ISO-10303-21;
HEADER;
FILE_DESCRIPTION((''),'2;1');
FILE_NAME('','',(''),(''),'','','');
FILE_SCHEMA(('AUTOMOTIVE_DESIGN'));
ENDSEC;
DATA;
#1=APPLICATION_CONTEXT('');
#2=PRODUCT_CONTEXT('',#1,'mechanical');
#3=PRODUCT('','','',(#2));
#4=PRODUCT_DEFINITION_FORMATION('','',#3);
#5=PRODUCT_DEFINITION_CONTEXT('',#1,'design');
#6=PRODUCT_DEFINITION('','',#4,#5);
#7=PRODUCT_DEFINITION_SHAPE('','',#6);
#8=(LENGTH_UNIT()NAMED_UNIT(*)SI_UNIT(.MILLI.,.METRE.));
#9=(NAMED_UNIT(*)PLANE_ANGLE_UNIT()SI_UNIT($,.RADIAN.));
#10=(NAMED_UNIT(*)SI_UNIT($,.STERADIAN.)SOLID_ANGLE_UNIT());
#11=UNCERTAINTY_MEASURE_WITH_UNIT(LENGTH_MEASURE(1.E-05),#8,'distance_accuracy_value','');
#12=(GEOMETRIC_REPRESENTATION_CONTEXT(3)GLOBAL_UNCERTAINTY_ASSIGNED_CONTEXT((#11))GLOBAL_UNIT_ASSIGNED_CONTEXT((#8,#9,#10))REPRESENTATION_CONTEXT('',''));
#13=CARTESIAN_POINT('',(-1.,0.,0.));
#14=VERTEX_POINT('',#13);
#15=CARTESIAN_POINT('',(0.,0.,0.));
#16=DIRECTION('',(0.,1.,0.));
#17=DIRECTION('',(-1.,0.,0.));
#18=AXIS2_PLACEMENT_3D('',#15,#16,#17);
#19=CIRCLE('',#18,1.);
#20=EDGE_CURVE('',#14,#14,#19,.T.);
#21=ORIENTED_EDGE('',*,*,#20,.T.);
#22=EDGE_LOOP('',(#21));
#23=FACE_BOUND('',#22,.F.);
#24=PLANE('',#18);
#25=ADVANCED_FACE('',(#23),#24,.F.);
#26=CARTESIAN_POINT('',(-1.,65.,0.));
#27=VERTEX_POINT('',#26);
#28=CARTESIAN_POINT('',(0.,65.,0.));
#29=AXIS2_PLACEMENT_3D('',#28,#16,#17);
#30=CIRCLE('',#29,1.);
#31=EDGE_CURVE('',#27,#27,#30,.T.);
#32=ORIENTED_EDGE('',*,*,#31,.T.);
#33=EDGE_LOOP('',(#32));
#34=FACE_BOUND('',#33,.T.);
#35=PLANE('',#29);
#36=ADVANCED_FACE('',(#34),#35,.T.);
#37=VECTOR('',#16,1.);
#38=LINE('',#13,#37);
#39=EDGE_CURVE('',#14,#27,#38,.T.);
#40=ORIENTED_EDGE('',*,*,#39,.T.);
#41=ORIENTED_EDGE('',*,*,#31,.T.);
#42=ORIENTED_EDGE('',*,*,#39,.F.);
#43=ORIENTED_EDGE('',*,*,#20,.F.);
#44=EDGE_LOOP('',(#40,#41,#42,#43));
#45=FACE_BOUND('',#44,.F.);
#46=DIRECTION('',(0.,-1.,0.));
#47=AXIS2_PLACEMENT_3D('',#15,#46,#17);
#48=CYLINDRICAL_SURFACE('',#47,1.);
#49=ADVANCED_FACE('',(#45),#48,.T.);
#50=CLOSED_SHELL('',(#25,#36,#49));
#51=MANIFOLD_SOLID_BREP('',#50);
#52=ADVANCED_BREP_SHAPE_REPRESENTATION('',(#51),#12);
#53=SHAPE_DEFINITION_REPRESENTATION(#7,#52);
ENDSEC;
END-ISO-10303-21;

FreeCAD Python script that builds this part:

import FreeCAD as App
import Part
import Sketcher
from FreeCAD import Vector

doc = App.newDocument("Part")
body = doc.addObject("PartDesign::Body", "Body")

sketch1 = body.newObject("Sketcher::SketchObject", "Sketch")
sketch1.AttachmentSupport = (doc.getObject("XZ_Plane"), [""])
sketch1.MapMode = "FlatFace"
sketch1.addGeometry(Part.Circle(Vector(0, 0, 0), Vector(0, 0, 1), 1), False)
sketch1.addConstraint(Sketcher.Constraint("Coincident", 0, 3, -1, 1))
sketch1.addConstraint(Sketcher.Constraint("Diameter", 0, 2.0))
pad1 = body.newObject("PartDesign::Pad", "Pad")
pad1.Profile = sketch1
pad1.Length = 65
pad1.Reversed = True

doc.recompute()
